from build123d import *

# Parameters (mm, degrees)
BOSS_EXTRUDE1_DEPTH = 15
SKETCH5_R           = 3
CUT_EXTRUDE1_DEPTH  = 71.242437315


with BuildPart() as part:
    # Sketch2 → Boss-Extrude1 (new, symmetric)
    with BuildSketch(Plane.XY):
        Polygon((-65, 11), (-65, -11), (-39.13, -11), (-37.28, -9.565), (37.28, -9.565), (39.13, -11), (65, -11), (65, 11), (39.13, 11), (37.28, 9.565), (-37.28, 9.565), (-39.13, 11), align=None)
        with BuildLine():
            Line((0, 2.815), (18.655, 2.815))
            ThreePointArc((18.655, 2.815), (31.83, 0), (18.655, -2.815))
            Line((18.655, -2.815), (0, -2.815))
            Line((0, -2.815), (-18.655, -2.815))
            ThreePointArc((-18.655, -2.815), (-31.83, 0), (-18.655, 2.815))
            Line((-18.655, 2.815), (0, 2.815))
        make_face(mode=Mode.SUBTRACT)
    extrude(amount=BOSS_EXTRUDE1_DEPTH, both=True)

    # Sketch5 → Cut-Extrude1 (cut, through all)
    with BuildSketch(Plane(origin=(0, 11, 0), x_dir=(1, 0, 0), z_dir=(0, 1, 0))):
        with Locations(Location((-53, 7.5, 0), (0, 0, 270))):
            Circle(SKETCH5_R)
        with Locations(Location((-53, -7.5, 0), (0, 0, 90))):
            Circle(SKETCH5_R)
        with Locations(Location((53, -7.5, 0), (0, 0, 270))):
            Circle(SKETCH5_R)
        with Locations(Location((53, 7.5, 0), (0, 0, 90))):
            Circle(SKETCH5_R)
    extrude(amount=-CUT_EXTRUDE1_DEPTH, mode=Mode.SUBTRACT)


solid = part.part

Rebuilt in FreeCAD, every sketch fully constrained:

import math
import FreeCAD as App
import Part
import Sketcher
from FreeCAD import Vector
Q = App.Units.Quantity


def add_polygon(sketch, points):
    """Adds a closed chain of lines whose ends are joined by coincident constraints."""
    first, n = sketch.GeometryCount, len(points)
    for a, b in zip(points, points[1:] + points[:1]):
        sketch.addGeometry(Part.LineSegment(App.Vector(*a, 0), App.Vector(*b, 0)), False)
    for i in range(n):
        sketch.addConstraint(Sketcher.Constraint("Coincident", first + i, 2, first + (i + 1) % n, 1))

doc = App.newDocument("Part")
body = doc.addObject("PartDesign::Body", "Body")

sketch1 = doc.addObject("Sketcher::SketchObject", "Sketch")
body.addObject(sketch1)
sketch1.AttachmentSupport = (doc.XY_Plane, [""])
sketch1.MapMode = "FlatFace"
add_polygon(sketch1, [(-65, 11), (-65, -11), (-39.13, -11), (-37.28, -9.565), (37.28, -9.565), (39.13, -11), (65, -11), (65, 11), (39.13, 11), (37.28, 9.565), (-37.28, 9.565), (-39.13, 11)])
sketch1.addGeometry(Part.LineSegment(Vector(-18.655, 2.815, 0), Vector(18.655, 2.815, 0)), False)
sketch1.addGeometry(Part.ArcOfCircle(Part.Circle(Vector(24.94177, 0, 0), Vector(0, 0, 1), 6.88823), math.radians(-155.878803), math.radians(155.878803)), False)
sketch1.addGeometry(Part.LineSegment(Vector(18.655, -2.815, 0), Vector(-18.655, -2.815, 0)), False)
sketch1.addGeometry(Part.ArcOfCircle(Part.Circle(Vector(-24.94177, 0, 0), Vector(0, 0, 1), 6.88823), math.radians(24.121197), math.radians(335.878803)), False)
sketch1.addConstraint([
    Sketcher.Constraint("Coincident", 12, 2, 13, 2),
    Sketcher.Constraint("Coincident", 13, 1, 14, 1),
    Sketcher.Constraint("Coincident", 14, 2, 15, 2),
    Sketcher.Constraint("Coincident", 15, 1, 12, 1),
    Sketcher.Constraint("Vertical", 0),
    Sketcher.Constraint("Horizontal", 1),
    Sketcher.Constraint("Horizontal", 3),
    Sketcher.Constraint("Horizontal", 5),
    Sketcher.Constraint("Vertical", 6),
    Sketcher.Constraint("Horizontal", 7),
    Sketcher.Constraint("Horizontal", 9),
    Sketcher.Constraint("Horizontal", 11),
    Sketcher.Constraint("Horizontal", 12),
    Sketcher.Constraint("Horizontal", 14),
    Sketcher.Constraint("Equal", 13, 15),
    Sketcher.Constraint("Symmetric", 13, 3, 15, 3, -1, 1),
    Sketcher.Constraint("Symmetric", 0, 2, 6, 2, -1, 1),
    Sketcher.Constraint("Symmetric", 2, 2, 8, 2, -1, 1),
    Sketcher.Constraint("Symmetric", 4, 2, 10, 2, -1, 1),
    Sketcher.Constraint("Symmetric", 1, 2, 4, 2, -2),
    Sketcher.Constraint("Symmetric", 12, 2, 13, 1, -1),
    Sketcher.Constraint("Parallel", 2, 8),
    Sketcher.Constraint("Parallel", 4, 10),
    Sketcher.Constraint("Vertical", 3, 2, 8, 2),
    Sketcher.Constraint("DistanceY", 0, 2, 0, 1, Q("22 mm")),
    Sketcher.Constraint("DistanceX", 0, 2, -1, 1, Q("65 mm")),
    Sketcher.Constraint("DistanceX", 1, 1, 1, 2, Q("25.87 mm")),
    Sketcher.Constraint("DistanceX", 3, 1, 3, 2, Q("74.56 mm")),
    Sketcher.Constraint("DistanceX", 12, 1, 12, 2, Q("37.31 mm")),
    Sketcher.Constraint("Radius", 13, Q("6.88823 mm")),
    Sketcher.Constraint("DistanceY", 3, 2, 8, 2, Q("19.13 mm")),
    Sketcher.Constraint("DistanceY", 12, 2, 8, 2, Q("6.75 mm")),
])
pad1 = doc.addObject("PartDesign::Pad", "Pad")
body.addObject(pad1)
pad1.Profile = sketch1
pad1.Length = 30
pad1.Midplane = True

sketch2 = doc.addObject("Sketcher::SketchObject", "Sketch001")
body.addObject(sketch2)
sketch2.AttachmentSupport = (doc.XZ_Plane, [""])
sketch2.MapMode = "FlatFace"
sketch2.AttachmentOffset = App.Placement(Vector(0, 0, -11), App.Rotation())
sketch2.addGeometry([
    Part.Circle(Vector(-53, -7.5, 0), Vector(0, 0, 1), 3),
    Part.Circle(Vector(-53, 7.5, 0), Vector(0, 0, 1), 3),
    Part.Circle(Vector(53, 7.5, 0), Vector(0, 0, 1), 3),
    Part.Circle(Vector(53, -7.5, 0), Vector(0, 0, 1), 3),
], False)
sketch2.addConstraint([
    Sketcher.Constraint("Equal", 0, 1),
    Sketcher.Constraint("Equal", 1, 2),
    Sketcher.Constraint("Equal", 2, 3),
    Sketcher.Constraint("Symmetric", 0, 3, 2, 3, -1, 1),
    Sketcher.Constraint("Symmetric", 1, 3, 3, 3, -1, 1),
    Sketcher.Constraint("Symmetric", 1, 3, 2, 3, -2),
    Sketcher.Constraint("Diameter", 0, Q("6 mm")),
    Sketcher.Constraint("DistanceX", 0, 3, -1, 1, Q("53 mm")),
    Sketcher.Constraint("DistanceY", 0, 3, 1, 3, Q("15 mm")),
])
pocket1 = doc.addObject("PartDesign::Pocket", "Pocket")
body.addObject(pocket1)
pocket1.Profile = sketch2
pocket1.Type = "ThroughAll"
pocket1.Reversed = True

doc.recompute()
